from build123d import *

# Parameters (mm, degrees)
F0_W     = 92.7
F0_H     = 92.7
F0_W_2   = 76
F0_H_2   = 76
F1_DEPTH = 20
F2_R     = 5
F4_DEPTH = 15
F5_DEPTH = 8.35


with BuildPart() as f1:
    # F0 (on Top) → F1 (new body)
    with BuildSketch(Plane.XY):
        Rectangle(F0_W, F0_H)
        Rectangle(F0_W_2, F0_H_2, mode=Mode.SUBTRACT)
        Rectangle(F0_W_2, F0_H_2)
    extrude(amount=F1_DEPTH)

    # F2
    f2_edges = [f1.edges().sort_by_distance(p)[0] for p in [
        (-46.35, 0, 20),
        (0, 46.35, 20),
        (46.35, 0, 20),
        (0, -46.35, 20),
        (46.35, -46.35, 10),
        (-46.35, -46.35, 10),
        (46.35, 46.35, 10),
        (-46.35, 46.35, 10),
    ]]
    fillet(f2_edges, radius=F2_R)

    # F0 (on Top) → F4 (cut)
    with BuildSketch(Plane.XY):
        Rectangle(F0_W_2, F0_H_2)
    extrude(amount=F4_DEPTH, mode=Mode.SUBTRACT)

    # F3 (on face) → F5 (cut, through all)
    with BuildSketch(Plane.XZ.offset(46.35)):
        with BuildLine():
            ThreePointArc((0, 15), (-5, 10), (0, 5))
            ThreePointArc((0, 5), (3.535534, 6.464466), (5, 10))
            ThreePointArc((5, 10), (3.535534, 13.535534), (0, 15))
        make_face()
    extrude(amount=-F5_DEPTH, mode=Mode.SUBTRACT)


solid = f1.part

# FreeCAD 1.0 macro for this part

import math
import FreeCAD as App
import Part
import Sketcher

V = App.Vector
Q = App.Units.Quantity


def edges_at(feature, points):
    """Names of the edges that pass closest to the given points."""
    edges = feature.Shape.Edges
    near = lambda p: min(range(len(edges)), key=lambda i: edges[i].distToShape(Part.Vertex(*p))[0])
    return sorted({f"Edge{near(p) + 1}" for p in points})

doc = App.newDocument("Part")
params = doc.addObject("Spreadsheet::Sheet", "Params")
for row, (alias, value) in enumerate([
    ("sketch1_width", "92.7 mm"),
    ("pad1_length", "20 mm"),
    ("fillet_radius", "5 mm"),
    ("sketch2_width", "76 mm"),
    ("pocket1_length", "15 mm"),
    ("sketch3_radius", "5 mm"),
    ("pocket2_length", "8.35 mm"),
], start=1):
    params.set(f"A{row}", alias)
    params.set(f"B{row}", "=" + value)
    params.setAlias(f"B{row}", alias)

body = doc.addObject("PartDesign::Body", "Body")

# Sketch on XY plane
sketch1 = doc.addObject("Sketcher::SketchObject", "Sketch")
body.addObject(sketch1)
sketch1.AttachmentSupport = (doc.XY_Plane, [""])
sketch1.MapMode = "FlatFace"
sketch1.addGeometry([
    Part.LineSegment(V(-46.35, 46.35, 0), V(-46.35, -46.35, 0)),
    Part.LineSegment(V(-46.35, -46.35, 0), V(46.35, -46.35, 0)),
    Part.LineSegment(V(46.35, -46.35, 0), V(46.35, 46.35, 0)),
    Part.LineSegment(V(46.35, 46.35, 0), V(-46.35, 46.35, 0)),
], False)
sketch1.addConstraint([
    Sketcher.Constraint("Coincident", 0, 2, 1, 1),
    Sketcher.Constraint("Coincident", 1, 2, 2, 1),
    Sketcher.Constraint("Coincident", 2, 2, 3, 1),
    Sketcher.Constraint("Coincident", 3, 2, 0, 1),
    Sketcher.Constraint("Vertical", 0),
    Sketcher.Constraint("Horizontal", 1),
    Sketcher.Constraint("Vertical", 2),
    Sketcher.Constraint("Horizontal", 3),
    Sketcher.Constraint("Symmetric", 0, 2, 2, 2, -1, 1),
    Sketcher.Constraint("Equal", 3, 0),
    Sketcher.Constraint("DistanceX", 1, 1, 1, 2, Q("92.7 mm")),
])
sketch1.setExpression("Constraints[10]", "Params.sketch1_width")
pad1 = doc.addObject("PartDesign::Pad", "Pad")
body.addObject(pad1)
pad1.Profile = sketch1
pad1.setExpression("Length", "Params.pad1_length")
doc.recompute()

fillet = doc.addObject("PartDesign::Fillet", "Fillet")
body.addObject(fillet)
fillet.Base = (pad1, edges_at(pad1, [
    (-46.35, 0, 20),
    (0, 46.35, 20),
    (46.35, 0, 20),
    (0, -46.35, 20),
    (46.35, -46.35, 10),
    (-46.35, -46.35, 10),
    (46.35, 46.35, 10),
    (-46.35, 46.35, 10),
]))
fillet.setExpression("Radius", "Params.fillet_radius")

# Sketch on XY plane
sketch2 = doc.addObject("Sketcher::SketchObject", "Sketch001")
body.addObject(sketch2)
sketch2.AttachmentSupport = (doc.XY_Plane, [""])
sketch2.MapMode = "FlatFace"
sketch2.addGeometry([
    Part.LineSegment(V(-38, 38, 0), V(-38, -38, 0)),
    Part.LineSegment(V(-38, -38, 0), V(38, -38, 0)),
    Part.LineSegment(V(38, -38, 0), V(38, 38, 0)),
    Part.LineSegment(V(38, 38, 0), V(-38, 38, 0)),
], False)
sketch2.addConstraint([
    Sketcher.Constraint("Coincident", 0, 2, 1, 1),
    Sketcher.Constraint("Coincident", 1, 2, 2, 1),
    Sketcher.Constraint("Coincident", 2, 2, 3, 1),
    Sketcher.Constraint("Coincident", 3, 2, 0, 1),
    Sketcher.Constraint("Vertical", 0),
    Sketcher.Constraint("Horizontal", 1),
    Sketcher.Constraint("Vertical", 2),
    Sketcher.Constraint("Horizontal", 3),
    Sketcher.Constraint("Symmetric", 0, 2, 2, 2, -1, 1),
    Sketcher.Constraint("Equal", 3, 0),
    Sketcher.Constraint("DistanceX", 1, 1, 1, 2, Q("76 mm")),
])
sketch2.setExpression("Constraints[10]", "Params.sketch2_width")
pocket1 = doc.addObject("PartDesign::Pocket", "Pocket")
body.addObject(pocket1)
pocket1.Profile = sketch2
pocket1.setExpression("Length", "Params.pocket1_length")
pocket1.Reversed = True

# Sketch on XZ plane
sketch3 = doc.addObject("Sketcher::SketchObject", "Sketch002")
body.addObject(sketch3)
sketch3.AttachmentSupport = (doc.XZ_Plane, [""])
sketch3.MapMode = "FlatFace"
sketch3.AttachmentOffset = App.Placement(V(0, 0, 46.35), App.Rotation())
sketch3.addGeometry([
    Part.ArcOfCircle(Part.Circle(V(0, 10, 0), V(0, 0, 1), 5), math.radians(90), math.radians(270)),
    Part.ArcOfCircle(Part.Circle(V(0, 10, 0), V(0, 0, 1), 5), math.radians(-90.000004), math.radians(0.000004)),
    Part.ArcOfCircle(Part.Circle(V(0, 10, 0), V(0, 0, 1), 5), math.radians(-0.000004), math.radians(90.000004)),
], False)
sketch3.addConstraint([
    Sketcher.Constraint("Tangent", 0, 2, 1, 1),
    Sketcher.Constraint("Tangent", 1, 2, 2, 1),
    Sketcher.Constraint("Tangent", 2, 2, 0, 1),
    Sketcher.Constraint("PointOnObject", 0, 3, -2),
    Sketcher.Constraint("PointOnObject", 0, 2, -2),
    Sketcher.Constraint("PointOnObject", 2, 2, -2),
    Sketcher.Constraint("Horizontal", 2, 3, 1, 2),
    Sketcher.Constraint("Radius", 0, Q("5 mm")),
    Sketcher.Constraint("DistanceY", -1, 1, 0, 3, Q("10 mm")),
])
sketch3.setExpression("Constraints[7]", "Params.sketch3_radius")
pocket2 = doc.addObject("PartDesign::Pocket", "Pocket001")
body.addObject(pocket2)
pocket2.Profile = sketch3
pocket2.setExpression("Length", "Params.pocket2_length")

doc.recompute()
